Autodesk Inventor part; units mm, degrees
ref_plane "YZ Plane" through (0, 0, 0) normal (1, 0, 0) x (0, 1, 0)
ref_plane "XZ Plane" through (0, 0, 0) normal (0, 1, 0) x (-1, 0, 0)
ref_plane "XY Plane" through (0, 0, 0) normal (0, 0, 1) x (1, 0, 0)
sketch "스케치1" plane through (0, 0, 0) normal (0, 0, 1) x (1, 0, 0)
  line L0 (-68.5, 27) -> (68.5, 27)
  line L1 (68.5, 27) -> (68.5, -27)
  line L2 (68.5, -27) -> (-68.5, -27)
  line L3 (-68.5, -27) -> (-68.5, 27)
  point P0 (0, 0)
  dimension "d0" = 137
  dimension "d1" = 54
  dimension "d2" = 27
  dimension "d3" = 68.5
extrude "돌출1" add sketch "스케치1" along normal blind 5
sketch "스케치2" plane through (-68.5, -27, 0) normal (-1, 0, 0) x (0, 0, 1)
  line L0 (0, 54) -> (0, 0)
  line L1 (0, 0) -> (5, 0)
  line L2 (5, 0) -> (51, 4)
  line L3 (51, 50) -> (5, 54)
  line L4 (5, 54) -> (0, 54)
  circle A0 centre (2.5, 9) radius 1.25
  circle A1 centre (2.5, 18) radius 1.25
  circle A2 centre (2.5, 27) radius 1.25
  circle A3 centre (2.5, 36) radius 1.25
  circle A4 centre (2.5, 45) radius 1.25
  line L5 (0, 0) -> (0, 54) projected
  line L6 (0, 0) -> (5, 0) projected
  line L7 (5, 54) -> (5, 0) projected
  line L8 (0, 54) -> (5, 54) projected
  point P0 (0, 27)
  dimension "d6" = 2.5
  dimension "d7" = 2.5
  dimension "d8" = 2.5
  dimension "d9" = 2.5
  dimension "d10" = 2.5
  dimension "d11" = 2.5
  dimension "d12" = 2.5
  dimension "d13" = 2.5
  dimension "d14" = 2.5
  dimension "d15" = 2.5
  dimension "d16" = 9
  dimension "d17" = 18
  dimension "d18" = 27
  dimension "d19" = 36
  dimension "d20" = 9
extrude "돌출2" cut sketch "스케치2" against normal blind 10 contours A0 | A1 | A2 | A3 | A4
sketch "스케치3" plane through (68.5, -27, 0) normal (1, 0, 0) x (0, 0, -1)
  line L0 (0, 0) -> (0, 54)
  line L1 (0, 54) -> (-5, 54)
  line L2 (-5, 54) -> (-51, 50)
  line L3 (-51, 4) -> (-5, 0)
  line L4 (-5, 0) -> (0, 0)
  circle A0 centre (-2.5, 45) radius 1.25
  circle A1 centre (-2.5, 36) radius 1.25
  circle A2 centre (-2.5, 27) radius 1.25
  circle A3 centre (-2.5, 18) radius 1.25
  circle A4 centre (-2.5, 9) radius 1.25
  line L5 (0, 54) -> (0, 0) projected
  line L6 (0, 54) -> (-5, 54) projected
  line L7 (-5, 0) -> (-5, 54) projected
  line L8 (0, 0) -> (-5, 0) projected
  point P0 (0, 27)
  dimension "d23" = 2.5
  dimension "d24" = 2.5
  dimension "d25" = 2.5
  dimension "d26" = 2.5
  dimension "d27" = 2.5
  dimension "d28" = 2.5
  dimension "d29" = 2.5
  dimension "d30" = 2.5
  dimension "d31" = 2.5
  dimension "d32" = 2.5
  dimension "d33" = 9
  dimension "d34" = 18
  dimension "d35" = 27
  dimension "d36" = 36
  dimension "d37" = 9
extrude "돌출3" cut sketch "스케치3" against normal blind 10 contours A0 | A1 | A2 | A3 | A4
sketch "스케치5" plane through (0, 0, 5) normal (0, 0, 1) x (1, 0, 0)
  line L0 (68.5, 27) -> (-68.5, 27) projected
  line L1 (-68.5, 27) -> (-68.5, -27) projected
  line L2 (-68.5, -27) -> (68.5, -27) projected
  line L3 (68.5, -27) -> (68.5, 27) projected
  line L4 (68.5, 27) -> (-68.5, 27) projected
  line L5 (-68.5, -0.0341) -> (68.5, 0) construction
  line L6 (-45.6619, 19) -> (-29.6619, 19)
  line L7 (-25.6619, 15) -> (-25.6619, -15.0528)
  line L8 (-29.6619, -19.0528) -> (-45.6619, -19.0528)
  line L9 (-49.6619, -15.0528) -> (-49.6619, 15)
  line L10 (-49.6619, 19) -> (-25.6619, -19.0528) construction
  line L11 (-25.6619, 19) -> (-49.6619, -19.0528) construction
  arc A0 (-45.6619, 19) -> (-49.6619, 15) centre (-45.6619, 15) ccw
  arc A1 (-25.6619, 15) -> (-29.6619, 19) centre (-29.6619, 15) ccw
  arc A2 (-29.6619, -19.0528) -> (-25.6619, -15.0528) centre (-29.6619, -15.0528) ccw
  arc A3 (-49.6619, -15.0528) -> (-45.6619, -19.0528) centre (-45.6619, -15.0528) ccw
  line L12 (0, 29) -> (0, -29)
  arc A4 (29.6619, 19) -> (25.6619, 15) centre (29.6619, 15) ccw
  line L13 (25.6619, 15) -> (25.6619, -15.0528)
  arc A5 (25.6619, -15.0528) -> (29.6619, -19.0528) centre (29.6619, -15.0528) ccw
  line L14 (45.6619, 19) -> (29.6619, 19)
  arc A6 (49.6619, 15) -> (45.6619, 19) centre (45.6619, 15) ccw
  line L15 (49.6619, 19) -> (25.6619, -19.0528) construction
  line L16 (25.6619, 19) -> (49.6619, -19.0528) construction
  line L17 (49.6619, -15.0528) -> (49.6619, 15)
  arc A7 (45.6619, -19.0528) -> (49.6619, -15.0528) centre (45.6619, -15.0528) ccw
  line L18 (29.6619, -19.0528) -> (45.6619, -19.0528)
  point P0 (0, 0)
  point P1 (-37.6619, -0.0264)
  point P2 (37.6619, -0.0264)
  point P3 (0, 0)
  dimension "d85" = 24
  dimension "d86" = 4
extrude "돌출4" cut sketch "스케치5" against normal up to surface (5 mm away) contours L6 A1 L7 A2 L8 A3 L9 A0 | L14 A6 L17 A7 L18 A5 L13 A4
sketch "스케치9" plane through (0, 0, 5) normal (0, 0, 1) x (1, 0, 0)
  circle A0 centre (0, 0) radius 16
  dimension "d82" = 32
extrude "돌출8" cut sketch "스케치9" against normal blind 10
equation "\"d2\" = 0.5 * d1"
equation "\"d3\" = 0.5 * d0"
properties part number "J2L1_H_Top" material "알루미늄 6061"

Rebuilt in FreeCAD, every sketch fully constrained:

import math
import FreeCAD as App
import Part
import Sketcher

V = App.Vector


def add_polygon(sketch, points):
    """Adds a closed chain of lines whose ends are joined by coincident constraints."""
    first, n = sketch.GeometryCount, len(points)
    for a, b in zip(points, points[1:] + points[:1]):
        sketch.addGeometry(Part.LineSegment(App.Vector(*a, 0), App.Vector(*b, 0)), False)
    for i in range(n):
        sketch.addConstraint(Sketcher.Constraint("Coincident", first + i, 2, first + (i + 1) % n, 1))

doc = App.newDocument("Part")
body = doc.addObject("PartDesign::Body", "Body")

# Sketch on XY plane
sketch1 = doc.addObject("Sketcher::SketchObject", "Sketch")
body.addObject(sketch1)
sketch1.AttachmentSupport = (doc.XY_Plane, [""])
sketch1.MapMode = "FlatFace"
add_polygon(sketch1, [(68.5, 27), (-68.5, 27), (-68.5, -27), (68.5, -27)])  # lines 0-3
sketch1.addConstraint(Sketcher.Constraint("Horizontal", 0))
sketch1.addConstraint(Sketcher.Constraint("Vertical", 1))
sketch1.addConstraint(Sketcher.Constraint("Horizontal", 2))
sketch1.addConstraint(Sketcher.Constraint("Vertical", 3))
sketch1.addConstraint(Sketcher.Constraint("Symmetric", 0, 2, 2, 2, -1, 1))
sketch1.addConstraint(Sketcher.Constraint("DistanceX", 0, 2, 0, 1, 137.0))
sketch1.addConstraint(Sketcher.Constraint("DistanceY", 1, 2, 1, 1, 54.0))
pad1 = doc.addObject("PartDesign::Pad", "Pad")
body.addObject(pad1)
pad1.Profile = sketch1
pad1.Length = 5

# Sketch on YZ plane
sketch2 = doc.addObject("Sketcher::SketchObject", "Sketch001")
body.addObject(sketch2)
sketch2.AttachmentSupport = (doc.YZ_Plane, [""])
sketch2.MapMode = "FlatFace"
sketch2.AttachmentOffset = App.Placement(V(0, 0, -68.5), App.Rotation())
sketch2.addGeometry(Part.Circle(V(-18, 2.5, 0), V(0, 0, 1), 1.25), False)
sketch2.addGeometry(Part.Circle(V(-9, 2.5, 0), V(0, 0, 1), 1.25), False)
sketch2.addGeometry(Part.Circle(V(0, 2.5, 0), V(0, 0, 1), 1.25), False)
sketch2.addGeometry(Part.Circle(V(9, 2.5, 0), V(0, 0, 1), 1.25), False)
sketch2.addGeometry(Part.Circle(V(18, 2.5, 0), V(0, 0, 1), 1.25), False)
sketch2.addConstraint(Sketcher.Constraint("Equal", 0, 1))
sketch2.addConstraint(Sketcher.Constraint("Equal", 1, 2))
sketch2.addConstraint(Sketcher.Constraint("Equal", 2, 3))
sketch2.addConstraint(Sketcher.Constraint("Equal", 3, 4))
sketch2.addConstraint(Sketcher.Constraint("Symmetric", 1, 3, 3, 3, -2))
sketch2.addConstraint(Sketcher.Constraint("Symmetric", 0, 3, 4, 3, -2))
sketch2.addConstraint(Sketcher.Constraint("PointOnObject", 2, 3, -2))
sketch2.addConstraint(Sketcher.Constraint("Horizontal", 0, 3, 1, 3))
sketch2.addConstraint(Sketcher.Constraint("Horizontal", 1, 3, 2, 3))
sketch2.addConstraint(Sketcher.Constraint("Diameter", 0, 2.5))
sketch2.addConstraint(Sketcher.Constraint("DistanceX", 0, 3, -1, 1, 18.0))
sketch2.addConstraint(Sketcher.Constraint("DistanceX", 1, 3, -1, 1, 9.0))
sketch2.addConstraint(Sketcher.Constraint("DistanceY", -1, 1, 0, 3, 2.5))
pocket1 = doc.addObject("PartDesign::Pocket", "Pocket")
body.addObject(pocket1)
pocket1.Profile = sketch2
pocket1.Length = 10
pocket1.Reversed = True

# Sketch on YZ plane
sketch3 = doc.addObject("Sketcher::SketchObject", "Sketch002")
body.addObject(sketch3)
sketch3.AttachmentSupport = (doc.YZ_Plane, [""])
sketch3.MapMode = "FlatFace"
sketch3.AttachmentOffset = App.Placement(V(0, 0, 68.5), App.Rotation())
sketch3.addGeometry(Part.Circle(V(18, 2.5, 0), V(0, 0, 1), 1.25), False)
sketch3.addGeometry(Part.Circle(V(9, 2.5, 0), V(0, 0, 1), 1.25), False)
sketch3.addGeometry(Part.Circle(V(0, 2.5, 0), V(0, 0, 1), 1.25), False)
sketch3.addGeometry(Part.Circle(V(-9, 2.5, 0), V(0, 0, 1), 1.25), False)
sketch3.addGeometry(Part.Circle(V(-18, 2.5, 0), V(0, 0, 1), 1.25), False)
sketch3.addConstraint(Sketcher.Constraint("Equal", 0, 1))
sketch3.addConstraint(Sketcher.Constraint("Equal", 1, 2))
sketch3.addConstraint(Sketcher.Constraint("Equal", 2, 3))
sketch3.addConstraint(Sketcher.Constraint("Equal", 3, 4))
sketch3.addConstraint(Sketcher.Constraint("Symmetric", 1, 3, 3, 3, -2))
sketch3.addConstraint(Sketcher.Constraint("Symmetric", 0, 3, 4, 3, -2))
sketch3.addConstraint(Sketcher.Constraint("PointOnObject", 2, 3, -2))
sketch3.addConstraint(Sketcher.Constraint("Horizontal", 0, 3, 1, 3))
sketch3.addConstraint(Sketcher.Constraint("Horizontal", 1, 3, 2, 3))
sketch3.addConstraint(Sketcher.Constraint("Diameter", 0, 2.5))
sketch3.addConstraint(Sketcher.Constraint("DistanceX", -1, 1, 0, 3, 18.0))
sketch3.addConstraint(Sketcher.Constraint("DistanceX", -1, 1, 1, 3, 9.0))
sketch3.addConstraint(Sketcher.Constraint("DistanceY", -1, 1, 0, 3, 2.5))
pocket2 = doc.addObject("PartDesign::Pocket", "Pocket001")
body.addObject(pocket2)
pocket2.Profile = sketch3
pocket2.Length = 10

# Sketch on XY plane
sketch4 = doc.addObject("Sketcher::SketchObject", "Sketch003")
body.addObject(sketch4)
sketch4.AttachmentSupport = (doc.XY_Plane, [""])
sketch4.MapMode = "FlatFace"
sketch4.AttachmentOffset = App.Placement(V(0, 0, 5), App.Rotation())
sketch4.addGeometry(Part.LineSegment(V(-29.6619, 19, 0), V(-45.6619, 19, 0)), False)
sketch4.addGeometry(Part.ArcOfCircle(Part.Circle(V(-45.6619, 15, 0), V(0, 0, 1), 4), math.radians(90), math.radians(180)), False)
sketch4.addGeometry(Part.LineSegment(V(-49.6619, 15, 0), V(-49.6619, -15.0528, 0)), False)
sketch4.addGeometry(Part.ArcOfCircle(Part.Circle(V(-45.6619, -15.0528, 0), V(0, 0, 1), 4), math.radians(180), math.radians(270)), False)
sketch4.addGeometry(Part.LineSegment(V(-45.6619, -19.0528, 0), V(-29.6619, -19.0528, 0)), False)
sketch4.addGeometry(Part.ArcOfCircle(Part.Circle(V(-29.6619, -15.0528, 0), V(0, 0, 1), 4), math.radians(-90), math.radians(0)), False)
sketch4.addGeometry(Part.LineSegment(V(-25.6619, -15.0528, 0), V(-25.6619, 15, 0)), False)
sketch4.addGeometry(Part.ArcOfCircle(Part.Circle(V(-29.6619, 15, 0), V(0, 0, 1), 4), math.radians(0), math.radians(90)), False)
sketch4.addGeometry(Part.LineSegment(V(45.6619, 19, 0), V(29.6619, 19, 0)), False)
sketch4.addGeometry(Part.ArcOfCircle(Part.Circle(V(29.6619, 15, 0), V(0, 0, 1), 4), math.radians(90), math.radians(180)), False)
sketch4.addGeometry(Part.LineSegment(V(25.6619, 15, 0), V(25.6619, -15.0528, 0)), False)
sketch4.addGeometry(Part.ArcOfCircle(Part.Circle(V(29.6619, -15.0528, 0), V(0, 0, 1), 4), math.radians(180), math.radians(270)), False)
sketch4.addGeometry(Part.LineSegment(V(29.6619, -19.0528, 0), V(45.6619, -19.0528, 0)), False)
sketch4.addGeometry(Part.ArcOfCircle(Part.Circle(V(45.6619, -15.0528, 0), V(0, 0, 1), 4), math.radians(-90), math.radians(0)), False)
sketch4.addGeometry(Part.LineSegment(V(49.6619, -15.0528, 0), V(49.6619, 15, 0)), False)
sketch4.addGeometry(Part.ArcOfCircle(Part.Circle(V(45.6619, 15, 0), V(0, 0, 1), 4), math.radians(0), math.radians(90)), False)
sketch4.addConstraint(Sketcher.Constraint("Tangent", 0, 2, 1, 1))
sketch4.addConstraint(Sketcher.Constraint("Tangent", 1, 2, 2, 1))
sketch4.addConstraint(Sketcher.Constraint("Tangent", 2, 2, 3, 1))
sketch4.addConstraint(Sketcher.Constraint("Tangent", 3, 2, 4, 1))
sketch4.addConstraint(Sketcher.Constraint("Tangent", 4, 2, 5, 1))
sketch4.addConstraint(Sketcher.Constraint("Tangent", 5, 2, 6, 1))
sketch4.addConstraint(Sketcher.Constraint("Tangent", 6, 2, 7, 1))
sketch4.addConstraint(Sketcher.Constraint("Tangent", 7, 2, 0, 1))
sketch4.addConstraint(Sketcher.Constraint("Tangent", 8, 2, 9, 1))
sketch4.addConstraint(Sketcher.Constraint("Tangent", 9, 2, 10, 1))
sketch4.addConstraint(Sketcher.Constraint("Tangent", 10, 2, 11, 1))
sketch4.addConstraint(Sketcher.Constraint("Tangent", 11, 2, 12, 1))
sketch4.addConstraint(Sketcher.Constraint("Tangent", 12, 2, 13, 1))
sketch4.addConstraint(Sketcher.Constraint("Tangent", 13, 2, 14, 1))
sketch4.addConstraint(Sketcher.Constraint("Tangent", 14, 2, 15, 1))
sketch4.addConstraint(Sketcher.Constraint("Tangent", 15, 2, 8, 1))
sketch4.addConstraint(Sketcher.Constraint("Horizontal", 0))
sketch4.addConstraint(Sketcher.Constraint("Vertical", 2))
sketch4.addConstraint(Sketcher.Constraint("Horizontal", 4))
sketch4.addConstraint(Sketcher.Constraint("Vertical", 6))
sketch4.addConstraint(Sketcher.Constraint("Horizontal", 8))
sketch4.addConstraint(Sketcher.Constraint("Vertical", 10))
sketch4.addConstraint(Sketcher.Constraint("Horizontal", 12))
sketch4.addConstraint(Sketcher.Constraint("Vertical", 14))
sketch4.addConstraint(Sketcher.Constraint("Equal", 1, 3))
sketch4.addConstraint(Sketcher.Constraint("Equal", 3, 5))
sketch4.addConstraint(Sketcher.Constraint("Equal", 5, 7))
sketch4.addConstraint(Sketcher.Constraint("Equal", 7, 9))
sketch4.addConstraint(Sketcher.Constraint("Equal", 9, 11))
sketch4.addConstraint(Sketcher.Constraint("Equal", 11, 13))
sketch4.addConstraint(Sketcher.Constraint("Equal", 13, 15))
sketch4.addConstraint(Sketcher.Constraint("Symmetric", 7, 3, 9, 3, -2))
sketch4.addConstraint(Sketcher.Constraint("Symmetric", 3, 3, 13, 3, -2))
sketch4.addConstraint(Sketcher.Constraint("Radius", 1, 4.0))
sketch4.addConstraint(Sketcher.Constraint("DistanceX", 2, 2, 5, 2, 24.0))
sketch4.addConstraint(Sketcher.Constraint("DistanceY", -1, 1, 1, 3, 15.0))
sketch4.addConstraint(Sketcher.Constraint("DistanceY", 2, 2, 2, 1, 30.0528))
sketch4.addConstraint(Sketcher.Constraint("DistanceX", 1, 3, -1, 1, 45.662))
pocket3 = doc.addObject("PartDesign::Pocket", "Pocket002")
body.addObject(pocket3)
pocket3.Profile = sketch4
pocket3.Length = 5

# Sketch on XY plane
sketch5 = doc.addObject("Sketcher::SketchObject", "Sketch004")
body.addObject(sketch5)
sketch5.AttachmentSupport = (doc.XY_Plane, [""])
sketch5.MapMode = "FlatFace"
sketch5.AttachmentOffset = App.Placement(V(0, 0, 5), App.Rotation())
sketch5.addGeometry(Part.Circle(V(0, 0, 0), V(0, 0, 1), 16), False)
sketch5.addConstraint(Sketcher.Constraint("Coincident", 0, 3, -1, 1))
sketch5.addConstraint(Sketcher.Constraint("Diameter", 0, 32.0))
pocket4 = doc.addObject("PartDesign::Pocket", "Pocket003")
body.addObject(pocket4)
pocket4.Profile = sketch5
pocket4.Length = 10

doc.recompute()
